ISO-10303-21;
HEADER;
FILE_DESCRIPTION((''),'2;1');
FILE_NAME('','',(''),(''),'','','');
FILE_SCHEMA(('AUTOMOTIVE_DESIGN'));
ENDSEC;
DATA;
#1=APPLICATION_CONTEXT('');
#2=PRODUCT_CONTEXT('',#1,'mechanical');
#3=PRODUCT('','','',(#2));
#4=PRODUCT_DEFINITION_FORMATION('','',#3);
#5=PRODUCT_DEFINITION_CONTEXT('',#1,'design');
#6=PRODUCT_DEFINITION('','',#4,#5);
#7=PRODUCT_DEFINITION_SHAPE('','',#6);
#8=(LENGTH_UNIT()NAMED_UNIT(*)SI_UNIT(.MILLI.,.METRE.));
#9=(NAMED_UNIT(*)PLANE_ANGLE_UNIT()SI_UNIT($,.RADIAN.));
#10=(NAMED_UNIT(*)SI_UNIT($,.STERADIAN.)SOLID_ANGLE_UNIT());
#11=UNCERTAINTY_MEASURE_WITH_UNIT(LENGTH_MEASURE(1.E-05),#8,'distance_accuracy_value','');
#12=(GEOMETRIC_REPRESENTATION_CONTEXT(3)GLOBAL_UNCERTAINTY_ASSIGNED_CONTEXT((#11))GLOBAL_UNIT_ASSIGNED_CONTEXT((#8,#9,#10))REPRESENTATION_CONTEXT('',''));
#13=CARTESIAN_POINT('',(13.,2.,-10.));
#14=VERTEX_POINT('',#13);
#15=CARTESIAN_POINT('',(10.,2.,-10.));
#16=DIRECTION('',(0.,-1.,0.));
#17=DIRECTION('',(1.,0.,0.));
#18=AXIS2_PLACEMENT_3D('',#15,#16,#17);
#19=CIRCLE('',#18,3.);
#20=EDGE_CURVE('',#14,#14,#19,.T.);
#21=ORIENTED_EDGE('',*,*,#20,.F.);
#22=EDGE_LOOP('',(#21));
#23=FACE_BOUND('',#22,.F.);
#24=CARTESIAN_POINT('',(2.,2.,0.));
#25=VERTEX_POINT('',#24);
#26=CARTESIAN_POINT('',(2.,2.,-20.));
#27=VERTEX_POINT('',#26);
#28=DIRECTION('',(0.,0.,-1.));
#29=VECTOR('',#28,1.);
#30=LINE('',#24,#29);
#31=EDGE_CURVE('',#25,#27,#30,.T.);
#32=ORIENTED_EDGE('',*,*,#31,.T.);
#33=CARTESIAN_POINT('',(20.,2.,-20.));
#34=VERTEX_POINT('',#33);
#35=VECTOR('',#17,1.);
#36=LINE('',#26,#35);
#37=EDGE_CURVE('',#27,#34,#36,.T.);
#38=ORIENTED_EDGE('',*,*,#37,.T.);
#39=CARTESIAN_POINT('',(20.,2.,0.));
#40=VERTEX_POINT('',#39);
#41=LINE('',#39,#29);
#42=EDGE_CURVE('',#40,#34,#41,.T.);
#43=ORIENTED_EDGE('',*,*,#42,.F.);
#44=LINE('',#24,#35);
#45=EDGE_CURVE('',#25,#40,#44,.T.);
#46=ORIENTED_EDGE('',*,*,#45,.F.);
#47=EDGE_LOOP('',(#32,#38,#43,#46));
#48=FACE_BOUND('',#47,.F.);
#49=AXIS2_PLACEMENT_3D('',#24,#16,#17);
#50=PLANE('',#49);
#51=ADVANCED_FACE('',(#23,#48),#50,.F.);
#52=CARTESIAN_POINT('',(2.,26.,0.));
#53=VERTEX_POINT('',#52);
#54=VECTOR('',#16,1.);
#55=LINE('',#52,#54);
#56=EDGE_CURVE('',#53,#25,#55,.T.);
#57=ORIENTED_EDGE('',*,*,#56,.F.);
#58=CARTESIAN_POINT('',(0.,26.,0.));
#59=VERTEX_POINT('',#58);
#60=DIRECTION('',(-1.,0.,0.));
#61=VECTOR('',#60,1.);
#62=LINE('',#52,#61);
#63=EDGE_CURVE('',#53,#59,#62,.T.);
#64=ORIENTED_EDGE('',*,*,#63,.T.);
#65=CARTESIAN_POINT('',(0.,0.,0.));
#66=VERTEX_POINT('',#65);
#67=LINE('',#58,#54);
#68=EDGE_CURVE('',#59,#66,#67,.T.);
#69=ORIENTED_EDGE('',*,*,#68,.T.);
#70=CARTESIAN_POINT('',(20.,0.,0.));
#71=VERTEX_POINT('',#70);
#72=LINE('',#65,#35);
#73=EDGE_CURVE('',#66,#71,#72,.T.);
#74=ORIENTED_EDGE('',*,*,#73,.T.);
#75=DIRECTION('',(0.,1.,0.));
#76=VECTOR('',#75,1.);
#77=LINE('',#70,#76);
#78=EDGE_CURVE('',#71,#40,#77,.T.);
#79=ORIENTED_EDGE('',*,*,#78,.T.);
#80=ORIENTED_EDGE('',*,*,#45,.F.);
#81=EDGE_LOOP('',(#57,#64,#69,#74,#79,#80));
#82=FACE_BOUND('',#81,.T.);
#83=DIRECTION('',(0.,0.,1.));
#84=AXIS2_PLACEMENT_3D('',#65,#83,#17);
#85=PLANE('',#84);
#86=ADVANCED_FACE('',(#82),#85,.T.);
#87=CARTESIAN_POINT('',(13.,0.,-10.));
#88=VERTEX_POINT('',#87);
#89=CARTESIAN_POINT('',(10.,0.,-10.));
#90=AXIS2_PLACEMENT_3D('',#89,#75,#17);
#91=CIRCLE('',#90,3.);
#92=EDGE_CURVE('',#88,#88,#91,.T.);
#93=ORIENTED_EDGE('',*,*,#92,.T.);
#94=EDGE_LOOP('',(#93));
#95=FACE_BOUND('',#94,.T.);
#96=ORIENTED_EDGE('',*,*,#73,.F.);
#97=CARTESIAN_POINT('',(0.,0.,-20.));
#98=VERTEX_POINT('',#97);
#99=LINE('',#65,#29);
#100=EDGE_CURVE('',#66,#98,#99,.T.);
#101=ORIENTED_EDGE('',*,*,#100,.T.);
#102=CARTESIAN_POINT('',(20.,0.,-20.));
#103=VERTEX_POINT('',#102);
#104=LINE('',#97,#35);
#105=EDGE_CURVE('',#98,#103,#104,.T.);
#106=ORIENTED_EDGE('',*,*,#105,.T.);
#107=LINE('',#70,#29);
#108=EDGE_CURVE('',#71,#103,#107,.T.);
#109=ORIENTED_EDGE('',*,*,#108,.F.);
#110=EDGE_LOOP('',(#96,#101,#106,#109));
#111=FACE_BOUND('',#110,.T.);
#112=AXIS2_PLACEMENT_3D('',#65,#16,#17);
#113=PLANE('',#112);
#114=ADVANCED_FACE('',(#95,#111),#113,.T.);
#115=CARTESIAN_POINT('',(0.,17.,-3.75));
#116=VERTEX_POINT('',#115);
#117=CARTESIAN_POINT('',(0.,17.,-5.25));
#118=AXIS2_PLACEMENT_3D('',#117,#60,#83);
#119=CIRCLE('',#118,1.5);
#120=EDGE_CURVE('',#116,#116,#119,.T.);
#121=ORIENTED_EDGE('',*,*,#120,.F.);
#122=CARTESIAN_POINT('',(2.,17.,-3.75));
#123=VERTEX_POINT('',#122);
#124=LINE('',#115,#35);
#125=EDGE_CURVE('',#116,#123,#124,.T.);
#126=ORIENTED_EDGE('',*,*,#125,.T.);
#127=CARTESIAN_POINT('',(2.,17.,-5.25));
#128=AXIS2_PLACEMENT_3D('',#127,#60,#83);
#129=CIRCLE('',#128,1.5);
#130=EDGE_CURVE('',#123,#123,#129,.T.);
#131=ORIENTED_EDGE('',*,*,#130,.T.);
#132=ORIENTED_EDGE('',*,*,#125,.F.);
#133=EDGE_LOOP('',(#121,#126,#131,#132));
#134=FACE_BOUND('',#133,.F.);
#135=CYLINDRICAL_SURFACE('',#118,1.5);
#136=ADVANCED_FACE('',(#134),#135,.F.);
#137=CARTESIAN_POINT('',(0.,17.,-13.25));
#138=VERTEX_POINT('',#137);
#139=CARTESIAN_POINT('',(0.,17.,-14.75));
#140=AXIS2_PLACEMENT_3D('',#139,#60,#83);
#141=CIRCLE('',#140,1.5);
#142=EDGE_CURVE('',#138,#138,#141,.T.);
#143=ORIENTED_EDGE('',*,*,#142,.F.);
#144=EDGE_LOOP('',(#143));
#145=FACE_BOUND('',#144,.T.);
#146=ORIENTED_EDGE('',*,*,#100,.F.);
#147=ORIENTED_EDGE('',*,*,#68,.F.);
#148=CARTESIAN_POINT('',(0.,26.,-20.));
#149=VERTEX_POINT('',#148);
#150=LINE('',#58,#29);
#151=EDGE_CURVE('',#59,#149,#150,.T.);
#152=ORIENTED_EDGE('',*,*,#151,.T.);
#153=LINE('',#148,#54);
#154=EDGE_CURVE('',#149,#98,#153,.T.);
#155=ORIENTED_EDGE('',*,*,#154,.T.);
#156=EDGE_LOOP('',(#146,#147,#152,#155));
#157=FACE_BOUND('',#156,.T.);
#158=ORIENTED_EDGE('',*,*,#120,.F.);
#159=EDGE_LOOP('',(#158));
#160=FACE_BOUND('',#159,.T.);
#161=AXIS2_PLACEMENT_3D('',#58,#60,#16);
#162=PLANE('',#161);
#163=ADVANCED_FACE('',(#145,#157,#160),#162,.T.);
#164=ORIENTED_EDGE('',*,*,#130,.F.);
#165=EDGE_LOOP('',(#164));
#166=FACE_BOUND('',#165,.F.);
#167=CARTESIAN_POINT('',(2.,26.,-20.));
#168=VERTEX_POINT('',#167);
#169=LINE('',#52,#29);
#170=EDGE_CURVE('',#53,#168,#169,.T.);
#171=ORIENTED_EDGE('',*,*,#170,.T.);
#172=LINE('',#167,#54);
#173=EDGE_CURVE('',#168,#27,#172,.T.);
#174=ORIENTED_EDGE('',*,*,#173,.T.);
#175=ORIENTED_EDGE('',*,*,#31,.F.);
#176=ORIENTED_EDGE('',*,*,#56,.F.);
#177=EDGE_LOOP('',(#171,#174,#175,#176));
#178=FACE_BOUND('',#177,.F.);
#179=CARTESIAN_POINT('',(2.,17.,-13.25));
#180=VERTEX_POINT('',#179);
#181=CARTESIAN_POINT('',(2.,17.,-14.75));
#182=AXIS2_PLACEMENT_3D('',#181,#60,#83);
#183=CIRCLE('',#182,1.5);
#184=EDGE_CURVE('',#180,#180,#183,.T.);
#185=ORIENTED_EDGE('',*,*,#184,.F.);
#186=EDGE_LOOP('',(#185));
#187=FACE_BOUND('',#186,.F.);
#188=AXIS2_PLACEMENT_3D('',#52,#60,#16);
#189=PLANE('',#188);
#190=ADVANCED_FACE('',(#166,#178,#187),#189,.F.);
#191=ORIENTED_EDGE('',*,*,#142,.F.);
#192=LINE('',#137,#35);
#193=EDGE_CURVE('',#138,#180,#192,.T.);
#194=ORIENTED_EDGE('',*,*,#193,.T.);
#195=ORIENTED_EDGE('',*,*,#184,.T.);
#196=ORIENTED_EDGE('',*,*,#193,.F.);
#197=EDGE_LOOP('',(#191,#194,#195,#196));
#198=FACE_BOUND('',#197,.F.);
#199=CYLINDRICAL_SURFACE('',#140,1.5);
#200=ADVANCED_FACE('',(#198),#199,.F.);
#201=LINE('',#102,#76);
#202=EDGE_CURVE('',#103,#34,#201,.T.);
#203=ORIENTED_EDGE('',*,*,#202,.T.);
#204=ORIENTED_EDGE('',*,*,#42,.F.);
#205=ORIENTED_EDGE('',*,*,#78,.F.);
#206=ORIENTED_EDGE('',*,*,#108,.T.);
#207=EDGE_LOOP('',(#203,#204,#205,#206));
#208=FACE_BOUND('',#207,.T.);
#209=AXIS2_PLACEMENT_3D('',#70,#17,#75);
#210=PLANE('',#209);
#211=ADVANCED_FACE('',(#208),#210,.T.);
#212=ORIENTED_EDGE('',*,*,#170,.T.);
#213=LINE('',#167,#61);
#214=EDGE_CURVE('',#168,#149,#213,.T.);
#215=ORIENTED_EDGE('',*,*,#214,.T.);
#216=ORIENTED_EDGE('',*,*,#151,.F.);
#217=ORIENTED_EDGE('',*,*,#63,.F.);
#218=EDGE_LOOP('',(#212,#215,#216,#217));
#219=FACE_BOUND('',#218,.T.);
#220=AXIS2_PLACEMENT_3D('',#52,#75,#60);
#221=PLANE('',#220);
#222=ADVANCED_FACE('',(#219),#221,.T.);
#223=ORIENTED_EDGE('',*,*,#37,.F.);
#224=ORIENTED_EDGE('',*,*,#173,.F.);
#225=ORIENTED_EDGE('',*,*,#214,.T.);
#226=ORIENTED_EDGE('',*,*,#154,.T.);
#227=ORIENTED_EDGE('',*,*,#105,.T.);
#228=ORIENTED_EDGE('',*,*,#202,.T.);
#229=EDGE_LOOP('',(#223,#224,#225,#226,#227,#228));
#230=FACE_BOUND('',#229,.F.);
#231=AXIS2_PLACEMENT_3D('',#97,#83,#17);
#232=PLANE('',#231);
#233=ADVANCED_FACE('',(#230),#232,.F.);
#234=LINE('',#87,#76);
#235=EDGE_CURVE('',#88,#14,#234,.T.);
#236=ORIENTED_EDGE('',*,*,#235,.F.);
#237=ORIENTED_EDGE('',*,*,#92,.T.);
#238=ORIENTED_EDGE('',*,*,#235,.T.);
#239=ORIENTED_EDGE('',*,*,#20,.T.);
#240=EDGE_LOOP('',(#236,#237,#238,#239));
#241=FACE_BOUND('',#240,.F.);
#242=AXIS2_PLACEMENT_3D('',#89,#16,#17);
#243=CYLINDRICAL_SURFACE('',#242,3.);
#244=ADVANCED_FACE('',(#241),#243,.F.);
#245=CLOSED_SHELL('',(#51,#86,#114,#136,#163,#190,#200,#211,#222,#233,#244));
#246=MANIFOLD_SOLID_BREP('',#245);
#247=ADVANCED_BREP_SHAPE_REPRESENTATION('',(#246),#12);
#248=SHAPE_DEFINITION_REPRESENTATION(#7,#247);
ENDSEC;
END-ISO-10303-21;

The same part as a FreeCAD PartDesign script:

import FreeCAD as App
import Part
import Sketcher
from FreeCAD import Vector
Q = App.Units.Quantity


def add_polygon(sketch, points):
    """Adds a closed chain of lines whose ends are joined by coincident constraints."""
    first, n = sketch.GeometryCount, len(points)
    for a, b in zip(points, points[1:] + points[:1]):
        sketch.addGeometry(Part.LineSegment(App.Vector(*a, 0), App.Vector(*b, 0)), False)
    for i in range(n):
        sketch.addConstraint(Sketcher.Constraint("Coincident", first + i, 2, first + (i + 1) % n, 1))

doc = App.newDocument("Part")
body = doc.addObject("PartDesign::Body", "Body")

# Sketch on XY plane
sketch1 = body.newObject("Sketcher::SketchObject", "Sketch")
sketch1.AttachmentSupport = (doc.getObject("XY_Plane"), [""])
sketch1.MapMode = "FlatFace"
add_polygon(sketch1, [(0, 26), (0, 0), (20, 0), (20, 2), (2, 2), (2, 26)])  # lines 0-5
sketch1.addConstraint(Sketcher.Constraint("Vertical", 0))
sketch1.addConstraint(Sketcher.Constraint("Horizontal", 1))
sketch1.addConstraint(Sketcher.Constraint("Vertical", 2))
sketch1.addConstraint(Sketcher.Constraint("Horizontal", 3))
sketch1.addConstraint(Sketcher.Constraint("Vertical", 4))
sketch1.addConstraint(Sketcher.Constraint("Horizontal", 5))
sketch1.addConstraint(Sketcher.Constraint("Coincident", 0, 2, -1, 1))
sketch1.addConstraint(Sketcher.Constraint("Equal", 5, 2))
sketch1.addConstraint(Sketcher.Constraint("DistanceX", 1, 1, 1, 2, Q("20 mm")))
sketch1.addConstraint(Sketcher.Constraint("DistanceX", 5, 2, 5, 1, Q("2 mm")))
sketch1.addConstraint(Sketcher.Constraint("DistanceY", 0, 2, 0, 1, Q("26 mm")))
pad1 = body.newObject("PartDesign::Pad", "Pad")
pad1.Profile = sketch1
pad1.Length = 20
pad1.Reversed = True

# Sketch on XZ plane
sketch2 = body.newObject("Sketcher::SketchObject", "Sketch001")
sketch2.AttachmentSupport = (doc.getObject("XZ_Plane"), [""])
sketch2.MapMode = "FlatFace"
sketch2.addGeometry(Part.Circle(Vector(10, -10, 0), Vector(0, 0, 1), 3), False)
sketch2.addConstraint(Sketcher.Constraint("Diameter", 0, Q("6 mm")))
sketch2.addConstraint(Sketcher.Constraint("DistanceX", -1, 1, 0, 3, Q("10 mm")))
sketch2.addConstraint(Sketcher.Constraint("DistanceY", 0, 3, -1, 1, Q("10 mm")))
pocket1 = body.newObject("PartDesign::Pocket", "Pocket")
pocket1.Profile = sketch2
pocket1.Type = "ThroughAll"

# Sketch on YZ plane
sketch3 = body.newObject("Sketcher::SketchObject", "Sketch002")
sketch3.AttachmentSupport = (doc.getObject("YZ_Plane"), [""])
sketch3.MapMode = "FlatFace"
sketch3.addGeometry(Part.Circle(Vector(17, -5.2, 0), Vector(0, 0, 1), 1.5), False)
sketch3.addGeometry(Part.Circle(Vector(17, -14.8, 0), Vector(0, 0, 1), 1.5), False)
sketch3.addConstraint(Sketcher.Constraint("Equal", 0, 1))
sketch3.addConstraint(Sketcher.Constraint("Vertical", 0, 3, 1, 3))
sketch3.addConstraint(Sketcher.Constraint("Diameter", 0, Q("3 mm")))
sketch3.addConstraint(Sketcher.Constraint("DistanceY", 1, 3, 0, 3, Q("9.5 mm")))
sketch3.addConstraint(Sketcher.Constraint("DistanceY", 0, 3, -1, 1, Q("5.25 mm")))
sketch3.addConstraint(Sketcher.Constraint("DistanceX", -1, 1, 0, 3, Q("17 mm")))
pocket2 = body.newObject("PartDesign::Pocket", "Pocket001")
pocket2.Profile = sketch3
pocket2.Type = "ThroughAll"
pocket2.Reversed = True

doc.recompute()
